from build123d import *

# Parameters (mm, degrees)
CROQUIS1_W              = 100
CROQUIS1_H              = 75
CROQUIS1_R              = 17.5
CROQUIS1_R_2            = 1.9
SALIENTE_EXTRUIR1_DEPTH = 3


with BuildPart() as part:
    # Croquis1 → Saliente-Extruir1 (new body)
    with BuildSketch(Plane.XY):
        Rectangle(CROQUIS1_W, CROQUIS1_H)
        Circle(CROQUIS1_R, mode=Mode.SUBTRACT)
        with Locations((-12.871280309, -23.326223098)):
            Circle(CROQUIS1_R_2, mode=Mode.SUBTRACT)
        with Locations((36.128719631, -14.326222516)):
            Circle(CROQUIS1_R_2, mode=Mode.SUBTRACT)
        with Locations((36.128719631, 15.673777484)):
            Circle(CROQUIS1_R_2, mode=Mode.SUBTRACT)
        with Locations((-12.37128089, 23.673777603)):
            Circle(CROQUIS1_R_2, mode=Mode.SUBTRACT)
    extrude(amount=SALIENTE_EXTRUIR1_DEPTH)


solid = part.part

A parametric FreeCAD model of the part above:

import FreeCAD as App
import Part
import Sketcher

V = App.Vector


def add_polygon(sketch, points):
    """Adds a closed chain of lines whose ends are joined by coincident constraints."""
    first, n = sketch.GeometryCount, len(points)
    for a, b in zip(points, points[1:] + points[:1]):
        sketch.addGeometry(Part.LineSegment(App.Vector(*a, 0), App.Vector(*b, 0)), False)
    for i in range(n):
        sketch.addConstraint(Sketcher.Constraint("Coincident", first + i, 2, first + (i + 1) % n, 1))

doc = App.newDocument("Part")
body = doc.addObject("PartDesign::Body", "Body")

sketch1 = body.newObject("Sketcher::SketchObject", "Sketch")
sketch1.AttachmentSupport = (doc.getObject("XY_Plane"), [""])
sketch1.MapMode = "FlatFace"
add_polygon(sketch1, [(-50, 37.5), (-50, -37.5), (50, -37.5), (50, 37.5)])
sketch1.addGeometry(Part.Circle(V(-12.9, -23.3, 0), V(0, 0, 1), 1.9), False)
sketch1.addGeometry(Part.Circle(V(0, 0, 0), V(0, 0, 1), 17.5), False)
sketch1.addGeometry(Part.Circle(V(36.1, -14.3, 0), V(0, 0, 1), 1.9), False)
sketch1.addGeometry(Part.Circle(V(-12.4, 23.7, 0), V(0, 0, 1), 1.9), False)
sketch1.addGeometry(Part.Circle(V(36.1, 15.7, 0), V(0, 0, 1), 1.9), False)
sketch1.addConstraint([
    Sketcher.Constraint("Vertical", 0),
    Sketcher.Constraint("Horizontal", 1),
    Sketcher.Constraint("Vertical", 2),
    Sketcher.Constraint("Horizontal", 3),
    Sketcher.Constraint("Coincident", 5, 3, -1, 1),
    Sketcher.Constraint("Equal", 4, 6),
    Sketcher.Constraint("Equal", 6, 7),
    Sketcher.Constraint("Equal", 7, 8),
    Sketcher.Constraint("Symmetric", 0, 2, 2, 2, -1, 1),
    Sketcher.Constraint("Vertical", 6, 3, 8, 3),
    Sketcher.Constraint("Diameter", 5, 35.0),
    Sketcher.Constraint("Diameter", 4, 3.8),
    Sketcher.Constraint("DistanceX", 1, 1, 1, 2, 100.0),
    Sketcher.Constraint("DistanceY", 0, 2, 0, 1, 75.0),
    Sketcher.Constraint("DistanceX", 4, 3, 6, 3, 49.0),
    Sketcher.Constraint("DistanceY", 4, 3, 6, 3, 9.000001),
    Sketcher.Constraint("DistanceY", 4, 3, 7, 3, 47.000001),
    Sketcher.Constraint("DistanceY", 6, 3, 8, 3, 30.0),
    Sketcher.Constraint("DistanceX", 4, 3, 7, 3, 0.499999),
    Sketcher.Constraint("DistanceX", 4, 3, -1, 1, 12.87128),
    Sketcher.Constraint("DistanceY", 4, 3, -1, 1, 23.326223),
])
pad1 = body.newObject("PartDesign::Pad", "Pad")
pad1.Profile = sketch1
pad1.Length = 3

doc.recompute()
